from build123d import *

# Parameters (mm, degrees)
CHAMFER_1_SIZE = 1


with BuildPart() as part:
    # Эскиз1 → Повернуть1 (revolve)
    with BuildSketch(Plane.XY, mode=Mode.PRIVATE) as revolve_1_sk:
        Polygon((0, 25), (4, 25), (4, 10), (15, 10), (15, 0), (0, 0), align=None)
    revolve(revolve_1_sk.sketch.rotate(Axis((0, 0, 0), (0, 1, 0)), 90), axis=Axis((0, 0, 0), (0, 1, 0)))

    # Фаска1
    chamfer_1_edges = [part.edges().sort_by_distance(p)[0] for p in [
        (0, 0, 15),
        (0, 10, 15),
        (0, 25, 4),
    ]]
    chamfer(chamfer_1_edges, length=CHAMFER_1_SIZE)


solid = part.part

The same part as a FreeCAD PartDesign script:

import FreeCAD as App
import Part
import Sketcher
Q = App.Units.Quantity


def edges_at(feature, points):
    """Names of the edges that pass closest to the given points."""
    edges = feature.Shape.Edges
    near = lambda p: min(range(len(edges)), key=lambda i: edges[i].distToShape(Part.Vertex(*p))[0])
    return sorted({f"Edge{near(p) + 1}" for p in points})

doc = App.newDocument("Part")
params = doc.addObject("Spreadsheet::Sheet", "Params")
for row, (alias, value) in enumerate([
    ("sketch1_width", "4 mm"),
    ("sketch1_width2", "15 mm"),
    ("sketch1_height", "25 mm"),
    ("revolution_angle", "360 deg"),
    ("chamfer_size", "1 mm"),
], start=1):
    params.set(f"A{row}", alias)
    params.set(f"B{row}", "=" + value)
    params.setAlias(f"B{row}", alias)

body = doc.addObject("PartDesign::Body", "Body")

# Sketch on XY plane
sketch1 = body.newObject("Sketcher::SketchObject", "Sketch")
sketch1.AttachmentSupport = (doc.getObject("XY_Plane"), [""])
sketch1.MapMode = "FlatFace"
sketch1.addGeometry([
    Part.LineSegment(App.Vector(4, 25, 0), App.Vector(0, 25, 0)),  # 0
    Part.LineSegment(App.Vector(0, 25, 0), App.Vector(0, 0, 0)),  # 1
    Part.LineSegment(App.Vector(0, 0, 0), App.Vector(15, 0, 0)),  # 2
    Part.LineSegment(App.Vector(15, 0, 0), App.Vector(15, 10, 0)),  # 3
    Part.LineSegment(App.Vector(15, 10, 0), App.Vector(4, 10, 0)),  # 4
    Part.LineSegment(App.Vector(4, 10, 0), App.Vector(4, 25, 0)),  # 5
], False)
sketch1.addConstraint([
    Sketcher.Constraint("Coincident", 0, 2, 1, 1),
    Sketcher.Constraint("Coincident", 1, 2, 2, 1),
    Sketcher.Constraint("Coincident", 2, 2, 3, 1),
    Sketcher.Constraint("Coincident", 3, 2, 4, 1),
    Sketcher.Constraint("Coincident", 4, 2, 5, 1),
    Sketcher.Constraint("Coincident", 5, 2, 0, 1),
    Sketcher.Constraint("Horizontal", 0),
    Sketcher.Constraint("Vertical", 1),
    Sketcher.Constraint("Horizontal", 2),
    Sketcher.Constraint("Vertical", 3),
    Sketcher.Constraint("Horizontal", 4),
    Sketcher.Constraint("Vertical", 5),
    Sketcher.Constraint("Coincident", 1, 2, -1, 1),
    Sketcher.Constraint("Equal", 2, 5),
    Sketcher.Constraint("DistanceX", 0, 2, 0, 1, Q("4 mm")),
    Sketcher.Constraint("DistanceX", 2, 1, 2, 2, Q("15 mm")),
    Sketcher.Constraint("DistanceY", 1, 2, 1, 1, Q("25 mm")),
])
sketch1.setExpression("Constraints[14]", "Params.sketch1_width")
sketch1.setExpression("Constraints[15]", "Params.sketch1_width2")
sketch1.setExpression("Constraints[16]", "Params.sketch1_height")
revolution = body.newObject("PartDesign::Revolution", "Revolution")
revolution.Profile = sketch1
revolution.ReferenceAxis = (sketch1, ["V_Axis"])
revolution.setExpression("Angle", "Params.revolution_angle")
doc.recompute()

chamfer = body.newObject("PartDesign::Chamfer", "Chamfer")
chamfer.Base = (revolution, edges_at(revolution, [(0, 0, 15), (0, 10, 15), (0, 25, 4)]))
chamfer.setExpression("Size", "Params.chamfer_size")

doc.recompute()
